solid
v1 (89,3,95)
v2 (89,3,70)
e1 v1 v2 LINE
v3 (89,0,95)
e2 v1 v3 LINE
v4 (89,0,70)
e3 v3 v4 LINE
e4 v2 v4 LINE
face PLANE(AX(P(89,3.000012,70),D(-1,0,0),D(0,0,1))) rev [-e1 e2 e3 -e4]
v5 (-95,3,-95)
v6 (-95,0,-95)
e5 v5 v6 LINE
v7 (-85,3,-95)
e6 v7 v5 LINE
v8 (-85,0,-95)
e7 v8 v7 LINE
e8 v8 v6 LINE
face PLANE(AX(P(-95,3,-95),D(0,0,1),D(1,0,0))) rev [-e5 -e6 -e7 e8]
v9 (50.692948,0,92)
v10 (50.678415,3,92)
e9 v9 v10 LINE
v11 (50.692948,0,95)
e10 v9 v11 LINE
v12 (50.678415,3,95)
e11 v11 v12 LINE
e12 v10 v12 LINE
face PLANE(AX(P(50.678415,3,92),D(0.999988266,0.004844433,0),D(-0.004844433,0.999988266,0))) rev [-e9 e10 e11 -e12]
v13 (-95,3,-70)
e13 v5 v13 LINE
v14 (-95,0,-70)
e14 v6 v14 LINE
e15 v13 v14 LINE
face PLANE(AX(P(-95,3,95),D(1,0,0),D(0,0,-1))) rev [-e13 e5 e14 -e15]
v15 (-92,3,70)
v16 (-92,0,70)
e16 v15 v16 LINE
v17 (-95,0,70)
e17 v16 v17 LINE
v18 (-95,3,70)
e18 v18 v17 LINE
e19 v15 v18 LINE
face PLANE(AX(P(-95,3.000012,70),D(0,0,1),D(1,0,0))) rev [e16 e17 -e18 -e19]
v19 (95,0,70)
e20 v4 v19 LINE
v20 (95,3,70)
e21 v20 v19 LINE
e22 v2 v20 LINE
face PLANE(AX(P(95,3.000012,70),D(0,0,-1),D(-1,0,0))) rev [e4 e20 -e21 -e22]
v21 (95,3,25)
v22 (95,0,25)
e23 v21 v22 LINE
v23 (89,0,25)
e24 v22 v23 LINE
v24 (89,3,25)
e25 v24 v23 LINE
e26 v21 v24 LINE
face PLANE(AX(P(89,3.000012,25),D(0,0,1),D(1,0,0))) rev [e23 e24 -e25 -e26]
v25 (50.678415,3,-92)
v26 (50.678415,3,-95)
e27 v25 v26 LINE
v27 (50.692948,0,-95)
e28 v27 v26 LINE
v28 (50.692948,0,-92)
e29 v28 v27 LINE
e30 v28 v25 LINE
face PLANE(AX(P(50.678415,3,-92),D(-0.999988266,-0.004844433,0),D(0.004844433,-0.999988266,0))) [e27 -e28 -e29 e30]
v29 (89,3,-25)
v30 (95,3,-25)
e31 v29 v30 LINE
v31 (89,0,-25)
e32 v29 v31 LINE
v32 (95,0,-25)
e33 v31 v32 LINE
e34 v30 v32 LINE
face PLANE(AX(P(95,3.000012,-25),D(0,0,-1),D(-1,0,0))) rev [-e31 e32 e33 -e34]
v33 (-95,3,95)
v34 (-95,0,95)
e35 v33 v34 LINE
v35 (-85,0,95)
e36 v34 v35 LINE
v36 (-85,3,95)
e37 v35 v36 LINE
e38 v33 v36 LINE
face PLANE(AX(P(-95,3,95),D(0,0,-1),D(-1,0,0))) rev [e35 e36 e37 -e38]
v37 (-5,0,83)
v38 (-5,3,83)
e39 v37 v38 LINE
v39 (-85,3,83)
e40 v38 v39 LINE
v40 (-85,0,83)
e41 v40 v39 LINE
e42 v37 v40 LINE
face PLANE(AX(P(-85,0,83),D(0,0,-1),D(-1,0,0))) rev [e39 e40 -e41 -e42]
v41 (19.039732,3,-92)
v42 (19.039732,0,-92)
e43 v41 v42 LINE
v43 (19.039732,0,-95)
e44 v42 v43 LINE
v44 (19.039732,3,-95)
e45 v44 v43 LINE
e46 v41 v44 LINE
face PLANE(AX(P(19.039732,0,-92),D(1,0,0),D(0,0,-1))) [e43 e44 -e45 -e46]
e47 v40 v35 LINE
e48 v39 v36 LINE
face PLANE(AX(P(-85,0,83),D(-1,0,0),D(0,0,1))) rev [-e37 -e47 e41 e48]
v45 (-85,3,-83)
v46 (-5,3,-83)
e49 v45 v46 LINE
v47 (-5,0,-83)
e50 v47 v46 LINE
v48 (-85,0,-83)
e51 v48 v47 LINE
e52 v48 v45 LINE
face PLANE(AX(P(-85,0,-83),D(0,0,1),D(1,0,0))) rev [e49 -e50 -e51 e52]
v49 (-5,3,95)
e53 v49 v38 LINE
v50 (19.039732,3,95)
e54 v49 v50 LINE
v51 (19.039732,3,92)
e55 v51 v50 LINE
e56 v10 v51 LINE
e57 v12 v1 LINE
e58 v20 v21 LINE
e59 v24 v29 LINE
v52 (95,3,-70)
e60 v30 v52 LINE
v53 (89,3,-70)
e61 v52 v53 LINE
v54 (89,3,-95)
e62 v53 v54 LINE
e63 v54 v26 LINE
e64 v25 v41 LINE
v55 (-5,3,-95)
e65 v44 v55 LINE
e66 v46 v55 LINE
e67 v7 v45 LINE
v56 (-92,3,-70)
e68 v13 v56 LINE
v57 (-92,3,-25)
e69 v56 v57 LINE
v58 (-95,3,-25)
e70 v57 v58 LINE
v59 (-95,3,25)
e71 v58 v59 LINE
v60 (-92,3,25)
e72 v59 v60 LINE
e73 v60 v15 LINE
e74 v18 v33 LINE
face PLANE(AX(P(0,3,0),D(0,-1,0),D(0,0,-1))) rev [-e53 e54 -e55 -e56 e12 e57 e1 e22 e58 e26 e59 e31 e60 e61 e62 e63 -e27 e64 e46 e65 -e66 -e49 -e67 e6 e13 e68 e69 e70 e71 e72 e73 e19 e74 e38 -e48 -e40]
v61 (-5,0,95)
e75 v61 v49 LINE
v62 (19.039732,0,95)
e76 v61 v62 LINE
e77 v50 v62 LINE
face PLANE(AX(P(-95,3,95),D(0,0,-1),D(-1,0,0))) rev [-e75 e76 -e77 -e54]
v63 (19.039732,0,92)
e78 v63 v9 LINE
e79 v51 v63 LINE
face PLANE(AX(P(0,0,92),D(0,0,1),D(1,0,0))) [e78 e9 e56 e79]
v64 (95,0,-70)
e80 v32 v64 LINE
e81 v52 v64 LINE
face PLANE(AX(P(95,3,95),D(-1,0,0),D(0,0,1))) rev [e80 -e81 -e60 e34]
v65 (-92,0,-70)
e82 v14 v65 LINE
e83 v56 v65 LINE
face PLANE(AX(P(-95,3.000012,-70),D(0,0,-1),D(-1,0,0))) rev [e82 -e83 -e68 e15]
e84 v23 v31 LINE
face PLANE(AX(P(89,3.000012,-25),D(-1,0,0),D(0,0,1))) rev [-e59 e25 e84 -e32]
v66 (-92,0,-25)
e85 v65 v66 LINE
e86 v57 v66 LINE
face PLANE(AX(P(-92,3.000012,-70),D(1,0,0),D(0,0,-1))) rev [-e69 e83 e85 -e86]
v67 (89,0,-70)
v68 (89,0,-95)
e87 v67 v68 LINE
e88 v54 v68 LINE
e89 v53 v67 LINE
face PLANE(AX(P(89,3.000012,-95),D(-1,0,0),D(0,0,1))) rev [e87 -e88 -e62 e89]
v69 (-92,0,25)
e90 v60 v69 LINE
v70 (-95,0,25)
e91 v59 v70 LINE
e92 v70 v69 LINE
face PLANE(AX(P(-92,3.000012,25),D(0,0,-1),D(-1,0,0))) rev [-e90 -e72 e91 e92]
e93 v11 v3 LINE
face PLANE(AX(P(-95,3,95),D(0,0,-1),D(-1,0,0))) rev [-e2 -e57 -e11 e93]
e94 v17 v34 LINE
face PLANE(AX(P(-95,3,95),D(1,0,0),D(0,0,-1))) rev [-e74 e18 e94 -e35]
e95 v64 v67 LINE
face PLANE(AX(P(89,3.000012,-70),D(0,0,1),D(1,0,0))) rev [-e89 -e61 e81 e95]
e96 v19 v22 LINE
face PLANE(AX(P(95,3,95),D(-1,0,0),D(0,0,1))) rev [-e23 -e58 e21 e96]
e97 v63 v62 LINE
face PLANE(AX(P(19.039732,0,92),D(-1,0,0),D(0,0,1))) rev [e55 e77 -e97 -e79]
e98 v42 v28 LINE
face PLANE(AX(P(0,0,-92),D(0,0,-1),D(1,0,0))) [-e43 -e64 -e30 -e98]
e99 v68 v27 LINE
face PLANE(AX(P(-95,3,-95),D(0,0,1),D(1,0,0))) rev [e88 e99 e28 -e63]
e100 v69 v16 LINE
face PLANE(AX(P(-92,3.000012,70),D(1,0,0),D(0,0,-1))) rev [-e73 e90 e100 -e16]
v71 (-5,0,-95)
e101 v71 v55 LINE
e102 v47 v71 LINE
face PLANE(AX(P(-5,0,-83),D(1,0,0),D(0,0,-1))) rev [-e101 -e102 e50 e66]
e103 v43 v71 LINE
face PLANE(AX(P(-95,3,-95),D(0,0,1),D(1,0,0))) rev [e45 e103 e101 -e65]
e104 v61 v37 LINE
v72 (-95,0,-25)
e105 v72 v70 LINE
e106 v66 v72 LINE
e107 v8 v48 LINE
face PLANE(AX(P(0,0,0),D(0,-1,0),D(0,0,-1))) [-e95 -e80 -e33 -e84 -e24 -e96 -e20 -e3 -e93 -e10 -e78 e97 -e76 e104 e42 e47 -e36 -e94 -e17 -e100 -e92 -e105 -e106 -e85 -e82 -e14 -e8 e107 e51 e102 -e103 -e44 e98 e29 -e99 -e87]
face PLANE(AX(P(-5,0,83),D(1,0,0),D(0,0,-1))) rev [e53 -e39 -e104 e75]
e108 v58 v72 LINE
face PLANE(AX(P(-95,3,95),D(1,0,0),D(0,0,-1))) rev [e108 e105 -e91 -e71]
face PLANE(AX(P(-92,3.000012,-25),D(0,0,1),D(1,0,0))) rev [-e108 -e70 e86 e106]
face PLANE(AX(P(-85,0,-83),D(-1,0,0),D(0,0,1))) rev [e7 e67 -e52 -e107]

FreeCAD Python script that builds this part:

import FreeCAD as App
import Part
import Sketcher
from FreeCAD import Vector
Q = App.Units.Quantity

doc = App.newDocument("Part")
params = doc.addObject("Spreadsheet::Sheet", "Params")
for row, (alias, value) in enumerate([
    ("sketch1_width", "190 mm"),
    ("pad1_length", "3 mm"),
    ("sketch2_width", "184 mm"),
    ("sketch2_width2", "3 mm"),
    ("sketch2_width3", "6 mm"),
    ("sketch2_height", "25 mm"),
    ("sketch2_height2", "45 mm"),
    ("sketch3_width", "80 mm"),
    ("sketch3_height", "12 mm"),
    ("pocket2_length", "3 mm"),
    ("sketch4_height", "3 mm"),
    ("pocket3_length", "3 mm"),
], start=1):
    params.set(f"A{row}", alias)
    params.set(f"B{row}", "=" + value)
    params.setAlias(f"B{row}", alias)

body = doc.addObject("PartDesign::Body", "Body")

# Sketch on XZ plane
sketch1 = body.newObject("Sketcher::SketchObject", "Sketch")
sketch1.AttachmentSupport = (doc.getObject("XZ_Plane"), [""])
sketch1.MapMode = "FlatFace"
sketch1.addGeometry(Part.LineSegment(Vector(-95, -95, 0), Vector(-95, 95, 0)), False)
sketch1.addGeometry(Part.LineSegment(Vector(-95, 95, 0), Vector(95, 95, 0)), False)
sketch1.addGeometry(Part.LineSegment(Vector(95, 95, 0), Vector(95, -95, 0)), False)
sketch1.addGeometry(Part.LineSegment(Vector(95, -95, 0), Vector(-95, -95, 0)), False)
sketch1.addConstraint(Sketcher.Constraint("Coincident", 0, 2, 1, 1))
sketch1.addConstraint(Sketcher.Constraint("Coincident", 1, 2, 2, 1))
sketch1.addConstraint(Sketcher.Constraint("Coincident", 2, 2, 3, 1))
sketch1.addConstraint(Sketcher.Constraint("Coincident", 3, 2, 0, 1))
sketch1.addConstraint(Sketcher.Constraint("Vertical", 0))
sketch1.addConstraint(Sketcher.Constraint("Horizontal", 1))
sketch1.addConstraint(Sketcher.Constraint("Vertical", 2))
sketch1.addConstraint(Sketcher.Constraint("Horizontal", 3))
sketch1.addConstraint(Sketcher.Constraint("Symmetric", 0, 2, 2, 2, -1, 1))
sketch1.addConstraint(Sketcher.Constraint("Equal", 3, 0))
sketch1.addConstraint(Sketcher.Constraint("DistanceX", 1, 1, 1, 2, Q("190 mm")))
sketch1.setExpression("Constraints[10]", "Params.sketch1_width")
pad1 = body.newObject("PartDesign::Pad", "Pad")
pad1.Profile = sketch1
pad1.setExpression("Length", "Params.pad1_length")
pad1.Reversed = True

# Sketch on XZ plane
sketch2 = body.newObject("Sketcher::SketchObject", "Sketch001")
sketch2.AttachmentSupport = (doc.getObject("XZ_Plane"), [""])
sketch2.MapMode = "FlatFace"
sketch2.AttachmentOffset = App.Placement(Vector(0, 0, -3), App.Rotation())
sketch2.addGeometry(Part.LineSegment(Vector(-122.9, -122.9, 0), Vector(-122.9, 122.9, 0)), False)
sketch2.addGeometry(Part.LineSegment(Vector(-122.9, 122.9, 0), Vector(122.9, 122.9, 0)), False)
sketch2.addGeometry(Part.LineSegment(Vector(122.9, 122.9, 0), Vector(122.9, -122.9, 0)), False)
sketch2.addGeometry(Part.LineSegment(Vector(122.9, -122.9, 0), Vector(-122.9, -122.9, 0)), False)
sketch2.addGeometry(Part.LineSegment(Vector(89, 95, 0), Vector(-95, 95, 0)), False)
sketch2.addGeometry(Part.LineSegment(Vector(-95, 95, 0), Vector(-95, 70, 0)), False)
sketch2.addGeometry(Part.LineSegment(Vector(-95, 70, 0), Vector(-92, 70, 0)), False)
sketch2.addGeometry(Part.LineSegment(Vector(-92, 70, 0), Vector(-92, 25, 0)), False)
sketch2.addGeometry(Part.LineSegment(Vector(-92, 25, 0), Vector(-95, 25, 0)), False)
sketch2.addGeometry(Part.LineSegment(Vector(-95, 25, 0), Vector(-95, -25, 0)), False)
sketch2.addGeometry(Part.LineSegment(Vector(-95, -25, 0), Vector(-92, -25, 0)), False)
sketch2.addGeometry(Part.LineSegment(Vector(-92, -25, 0), Vector(-92, -70, 0)), False)
sketch2.addGeometry(Part.LineSegment(Vector(-92, -70, 0), Vector(-95, -70, 0)), False)
sketch2.addGeometry(Part.LineSegment(Vector(-95, -70, 0), Vector(-95, -95, 0)), False)
sketch2.addGeometry(Part.LineSegment(Vector(-95, -95, 0), Vector(89, -95, 0)), False)
sketch2.addGeometry(Part.LineSegment(Vector(89, -95, 0), Vector(89, -70, 0)), False)
sketch2.addGeometry(Part.LineSegment(Vector(89, -70, 0), Vector(95, -70, 0)), False)
sketch2.addGeometry(Part.LineSegment(Vector(95, -70, 0), Vector(95, -25, 0)), False)
sketch2.addGeometry(Part.LineSegment(Vector(95, -25, 0), Vector(89, -25, 0)), False)
sketch2.addGeometry(Part.LineSegment(Vector(89, -25, 0), Vector(89, 25, 0)), False)
sketch2.addGeometry(Part.LineSegment(Vector(89, 25, 0), Vector(95, 25, 0)), False)
sketch2.addGeometry(Part.LineSegment(Vector(95, 25, 0), Vector(95, 70, 0)), False)
sketch2.addGeometry(Part.LineSegment(Vector(95, 70, 0), Vector(89, 70, 0)), False)
sketch2.addGeometry(Part.LineSegment(Vector(89, 70, 0), Vector(89, 95, 0)), False)
sketch2.addConstraint(Sketcher.Constraint("Coincident", 0, 2, 1, 1))
sketch2.addConstraint(Sketcher.Constraint("Coincident", 1, 2, 2, 1))
sketch2.addConstraint(Sketcher.Constraint("Coincident", 2, 2, 3, 1))
sketch2.addConstraint(Sketcher.Constraint("Coincident", 3, 2, 0, 1))
sketch2.addConstraint(Sketcher.Constraint("Coincident", 4, 2, 5, 1))
sketch2.addConstraint(Sketcher.Constraint("Coincident", 5, 2, 6, 1))
sketch2.addConstraint(Sketcher.Constraint("Coincident", 6, 2, 7, 1))
sketch2.addConstraint(Sketcher.Constraint("Coincident", 7, 2, 8, 1))
sketch2.addConstraint(Sketcher.Constraint("Coincident", 8, 2, 9, 1))
sketch2.addConstraint(Sketcher.Constraint("Coincident", 9, 2, 10, 1))
sketch2.addConstraint(Sketcher.Constraint("Coincident", 10, 2, 11, 1))
sketch2.addConstraint(Sketcher.Constraint("Coincident", 11, 2, 12, 1))
sketch2.addConstraint(Sketcher.Constraint("Coincident", 12, 2, 13, 1))
sketch2.addConstraint(Sketcher.Constraint("Coincident", 13, 2, 14, 1))
sketch2.addConstraint(Sketcher.Constraint("Coincident", 14, 2, 15, 1))
sketch2.addConstraint(Sketcher.Constraint("Coincident", 15, 2, 16, 1))
sketch2.addConstraint(Sketcher.Constraint("Coincident", 16, 2, 17, 1))
sketch2.addConstraint(Sketcher.Constraint("Coincident", 17, 2, 18, 1))
sketch2.addConstraint(Sketcher.Constraint("Coincident", 18, 2, 19, 1))
sketch2.addConstraint(Sketcher.Constraint("Coincident", 19, 2, 20, 1))
sketch2.addConstraint(Sketcher.Constraint("Coincident", 20, 2, 21, 1))
sketch2.addConstraint(Sketcher.Constraint("Coincident", 21, 2, 22, 1))
sketch2.addConstraint(Sketcher.Constraint("Coincident", 22, 2, 23, 1))
sketch2.addConstraint(Sketcher.Constraint("Coincident", 23, 2, 4, 1))
sketch2.addConstraint(Sketcher.Constraint("Vertical", 0))
sketch2.addConstraint(Sketcher.Constraint("Horizontal", 1))
sketch2.addConstraint(Sketcher.Constraint("Vertical", 2))
sketch2.addConstraint(Sketcher.Constraint("Horizontal", 3))
sketch2.addConstraint(Sketcher.Constraint("Horizontal", 4))
sketch2.addConstraint(Sketcher.Constraint("Vertical", 5))
sketch2.addConstraint(Sketcher.Constraint("Horizontal", 6))
sketch2.addConstraint(Sketcher.Constraint("Vertical", 7))
sketch2.addConstraint(Sketcher.Constraint("Horizontal", 8))
sketch2.addConstraint(Sketcher.Constraint("Vertical", 9))
sketch2.addConstraint(Sketcher.Constraint("Horizontal", 10))
sketch2.addConstraint(Sketcher.Constraint("Vertical", 11))
sketch2.addConstraint(Sketcher.Constraint("Horizontal", 12))
sketch2.addConstraint(Sketcher.Constraint("Vertical", 13))
sketch2.addConstraint(Sketcher.Constraint("Horizontal", 14))
sketch2.addConstraint(Sketcher.Constraint("Vertical", 15))
sketch2.addConstraint(Sketcher.Constraint("Horizontal", 16))
sketch2.addConstraint(Sketcher.Constraint("Vertical", 17))
sketch2.addConstraint(Sketcher.Constraint("Horizontal", 18))
sketch2.addConstraint(Sketcher.Constraint("Vertical", 19))
sketch2.addConstraint(Sketcher.Constraint("Horizontal", 20))
sketch2.addConstraint(Sketcher.Constraint("Vertical", 21))
sketch2.addConstraint(Sketcher.Constraint("Horizontal", 22))
sketch2.addConstraint(Sketcher.Constraint("Vertical", 23))
sketch2.addConstraint(Sketcher.Constraint("Symmetric", 0, 2, 2, 2, -1, 1))
sketch2.addConstraint(Sketcher.Constraint("Symmetric", 5, 2, 16, 2, -1, 1))
sketch2.addConstraint(Sketcher.Constraint("Symmetric", 8, 2, 17, 2, -1, 1))
sketch2.addConstraint(Sketcher.Constraint("Symmetric", 9, 2, 20, 2, -1, 1))
sketch2.addConstraint(Sketcher.Constraint("Symmetric", 12, 2, 21, 2, -1, 1))
sketch2.addConstraint(Sketcher.Constraint("Symmetric", 7, 2, 10, 2, -1))
sketch2.addConstraint(Sketcher.Constraint("Symmetric", 15, 2, 22, 2, -1))
sketch2.addConstraint(Sketcher.Constraint("Vertical", 15, 2, 18, 2))
sketch2.addConstraint(Sketcher.Constraint("Equal", 3, 0))
sketch2.addConstraint(Sketcher.Constraint("Equal", 5, 13))
sketch2.addConstraint(Sketcher.Constraint("DistanceX", 4, 2, 4, 1, Q("184 mm")))
sketch2.addConstraint(Sketcher.Constraint("DistanceX", 6, 1, 6, 2, Q("3 mm")))
sketch2.addConstraint(Sketcher.Constraint("DistanceX", 16, 1, 16, 2, Q("6 mm")))
sketch2.addConstraint(Sketcher.Constraint("DistanceY", 5, 2, 5, 1, Q("25 mm")))
sketch2.addConstraint(Sketcher.Constraint("DistanceY", 7, 2, 7, 1, Q("45 mm")))
sketch2.addConstraint(Sketcher.Constraint("DistanceY", 9, 2, 9, 1, Q("50 mm")))
sketch2.addConstraint(Sketcher.Constraint("DistanceX", 1, 1, 1, 2, Q("245.744 mm")))
sketch2.setExpression("Constraints[58]", "Params.sketch2_width")
sketch2.setExpression("Constraints[59]", "Params.sketch2_width2")
sketch2.setExpression("Constraints[60]", "Params.sketch2_width3")
sketch2.setExpression("Constraints[61]", "Params.sketch2_height")
sketch2.setExpression("Constraints[62]", "Params.sketch2_height2")
pocket1 = body.newObject("PartDesign::Pocket", "Pocket")
pocket1.Profile = sketch2
pocket1.Type = "ThroughAll"
pocket1.Midplane = True

# Sketch on XZ plane
sketch3 = body.newObject("Sketcher::SketchObject", "Sketch002")
sketch3.AttachmentSupport = (doc.getObject("XZ_Plane"), [""])
sketch3.MapMode = "FlatFace"
sketch3.AttachmentOffset = App.Placement(Vector(0, 0, -3), App.Rotation())
sketch3.addGeometry(Part.LineSegment(Vector(-85, -95, 0), Vector(-85, -83, 0)), False)
sketch3.addGeometry(Part.LineSegment(Vector(-85, -83, 0), Vector(-5, -83, 0)), False)
sketch3.addGeometry(Part.LineSegment(Vector(-5, -83, 0), Vector(-5, -95, 0)), False)
sketch3.addGeometry(Part.LineSegment(Vector(-5, -95, 0), Vector(-85, -95, 0)), False)
sketch3.addGeometry(Part.LineSegment(Vector(-85, 83, 0), Vector(-85, 95, 0)), False)
sketch3.addGeometry(Part.LineSegment(Vector(-85, 95, 0), Vector(-5, 95, 0)), False)
sketch3.addGeometry(Part.LineSegment(Vector(-5, 95, 0), Vector(-5, 83, 0)), False)
sketch3.addGeometry(Part.LineSegment(Vector(-5, 83, 0), Vector(-85, 83, 0)), False)
sketch3.addConstraint(Sketcher.Constraint("Coincident", 0, 2, 1, 1))
sketch3.addConstraint(Sketcher.Constraint("Coincident", 1, 2, 2, 1))
sketch3.addConstraint(Sketcher.Constraint("Coincident", 2, 2, 3, 1))
sketch3.addConstraint(Sketcher.Constraint("Coincident", 3, 2, 0, 1))
sketch3.addConstraint(Sketcher.Constraint("Coincident", 4, 2, 5, 1))
sketch3.addConstraint(Sketcher.Constraint("Coincident", 5, 2, 6, 1))
sketch3.addConstraint(Sketcher.Constraint("Coincident", 6, 2, 7, 1))
sketch3.addConstraint(Sketcher.Constraint("Coincident", 7, 2, 4, 1))
sketch3.addConstraint(Sketcher.Constraint("Vertical", 0))
sketch3.addConstraint(Sketcher.Constraint("Horizontal", 1))
sketch3.addConstraint(Sketcher.Constraint("Vertical", 2))
sketch3.addConstraint(Sketcher.Constraint("Horizontal", 3))
sketch3.addConstraint(Sketcher.Constraint("Vertical", 4))
sketch3.addConstraint(Sketcher.Constraint("Horizontal", 5))
sketch3.addConstraint(Sketcher.Constraint("Vertical", 6))
sketch3.addConstraint(Sketcher.Constraint("Horizontal", 7))
sketch3.addConstraint(Sketcher.Constraint("Symmetric", 3, 2, 4, 2, -1))
sketch3.addConstraint(Sketcher.Constraint("Symmetric", 1, 2, 6, 2, -1))
sketch3.addConstraint(Sketcher.Constraint("DistanceX", 1, 1, 1, 2, Q("80 mm")))
sketch3.addConstraint(Sketcher.Constraint("DistanceY", 0, 1, 0, 2, Q("12 mm")))
sketch3.addConstraint(Sketcher.Constraint("DistanceX", 0, 2, -1, 1, Q("85 mm")))
sketch3.addConstraint(Sketcher.Constraint("DistanceY", 0, 2, -1, 1, Q("83 mm")))
sketch3.setExpression("Constraints[18]", "Params.sketch3_width")
sketch3.setExpression("Constraints[19]", "Params.sketch3_height")
pocket2 = body.newObject("PartDesign::Pocket", "Pocket001")
pocket2.Profile = sketch3
pocket2.setExpression("Length", "Params.pocket2_length")
pocket2.Reversed = True

# Sketch on XY plane
sketch4 = body.newObject("Sketcher::SketchObject", "Sketch003")
sketch4.AttachmentSupport = (doc.getObject("XY_Plane"), [""])
sketch4.MapMode = "FlatFace"
sketch4.AttachmentOffset = App.Placement(Vector(0, 0, 95), App.Rotation())
sketch4.addGeometry(Part.LineSegment(Vector(50.7, 0, 0), Vector(50.7, 3, 0)), False)
sketch4.addGeometry(Part.LineSegment(Vector(50.7, 3, 0), Vector(19, 3, 0)), False)
sketch4.addGeometry(Part.LineSegment(Vector(19, 3, 0), Vector(19, 0, 0)), False)
sketch4.addGeometry(Part.LineSegment(Vector(19, 0, 0), Vector(50.7, 0, 0)), False)
sketch4.addConstraint(Sketcher.Constraint("Coincident", 0, 2, 1, 1))
sketch4.addConstraint(Sketcher.Constraint("Coincident", 1, 2, 2, 1))
sketch4.addConstraint(Sketcher.Constraint("Coincident", 2, 2, 3, 1))
sketch4.addConstraint(Sketcher.Constraint("Coincident", 3, 2, 0, 1))
sketch4.addConstraint(Sketcher.Constraint("Horizontal", 1))
sketch4.addConstraint(Sketcher.Constraint("Vertical", 2))
sketch4.addConstraint(Sketcher.Constraint("Horizontal", 3))
sketch4.addConstraint(Sketcher.Constraint("PointOnObject", 2, 2, -1))
sketch4.addConstraint(Sketcher.Constraint("DistanceY", 2, 2, 2, 1, Q("3 mm")))
sketch4.addConstraint(Sketcher.Constraint("DistanceX", 1, 2, 1, 1, Q("31.638682 mm")))
sketch4.addConstraint(Sketcher.Constraint("DistanceX", 3, 1, 3, 2, Q("31.653216 mm")))
sketch4.addConstraint(Sketcher.Constraint("DistanceX", -1, 1, 3, 2, Q("50.692948 mm")))
sketch4.setExpression("Constraints[8]", "Params.sketch4_height")
pocket3 = body.newObject("PartDesign::Pocket", "Pocket002")
pocket3.Profile = sketch4
pocket3.setExpression("Length", "Params.pocket3_length")
doc.recompute()

mirrored = body.newObject("PartDesign::Mirrored", "Mirrored")
mirrored.Originals = [pocket3]
mirrored.MirrorPlane = (doc.getObject("XY_Plane"), [""])
body.Tip = mirrored

doc.recompute()
